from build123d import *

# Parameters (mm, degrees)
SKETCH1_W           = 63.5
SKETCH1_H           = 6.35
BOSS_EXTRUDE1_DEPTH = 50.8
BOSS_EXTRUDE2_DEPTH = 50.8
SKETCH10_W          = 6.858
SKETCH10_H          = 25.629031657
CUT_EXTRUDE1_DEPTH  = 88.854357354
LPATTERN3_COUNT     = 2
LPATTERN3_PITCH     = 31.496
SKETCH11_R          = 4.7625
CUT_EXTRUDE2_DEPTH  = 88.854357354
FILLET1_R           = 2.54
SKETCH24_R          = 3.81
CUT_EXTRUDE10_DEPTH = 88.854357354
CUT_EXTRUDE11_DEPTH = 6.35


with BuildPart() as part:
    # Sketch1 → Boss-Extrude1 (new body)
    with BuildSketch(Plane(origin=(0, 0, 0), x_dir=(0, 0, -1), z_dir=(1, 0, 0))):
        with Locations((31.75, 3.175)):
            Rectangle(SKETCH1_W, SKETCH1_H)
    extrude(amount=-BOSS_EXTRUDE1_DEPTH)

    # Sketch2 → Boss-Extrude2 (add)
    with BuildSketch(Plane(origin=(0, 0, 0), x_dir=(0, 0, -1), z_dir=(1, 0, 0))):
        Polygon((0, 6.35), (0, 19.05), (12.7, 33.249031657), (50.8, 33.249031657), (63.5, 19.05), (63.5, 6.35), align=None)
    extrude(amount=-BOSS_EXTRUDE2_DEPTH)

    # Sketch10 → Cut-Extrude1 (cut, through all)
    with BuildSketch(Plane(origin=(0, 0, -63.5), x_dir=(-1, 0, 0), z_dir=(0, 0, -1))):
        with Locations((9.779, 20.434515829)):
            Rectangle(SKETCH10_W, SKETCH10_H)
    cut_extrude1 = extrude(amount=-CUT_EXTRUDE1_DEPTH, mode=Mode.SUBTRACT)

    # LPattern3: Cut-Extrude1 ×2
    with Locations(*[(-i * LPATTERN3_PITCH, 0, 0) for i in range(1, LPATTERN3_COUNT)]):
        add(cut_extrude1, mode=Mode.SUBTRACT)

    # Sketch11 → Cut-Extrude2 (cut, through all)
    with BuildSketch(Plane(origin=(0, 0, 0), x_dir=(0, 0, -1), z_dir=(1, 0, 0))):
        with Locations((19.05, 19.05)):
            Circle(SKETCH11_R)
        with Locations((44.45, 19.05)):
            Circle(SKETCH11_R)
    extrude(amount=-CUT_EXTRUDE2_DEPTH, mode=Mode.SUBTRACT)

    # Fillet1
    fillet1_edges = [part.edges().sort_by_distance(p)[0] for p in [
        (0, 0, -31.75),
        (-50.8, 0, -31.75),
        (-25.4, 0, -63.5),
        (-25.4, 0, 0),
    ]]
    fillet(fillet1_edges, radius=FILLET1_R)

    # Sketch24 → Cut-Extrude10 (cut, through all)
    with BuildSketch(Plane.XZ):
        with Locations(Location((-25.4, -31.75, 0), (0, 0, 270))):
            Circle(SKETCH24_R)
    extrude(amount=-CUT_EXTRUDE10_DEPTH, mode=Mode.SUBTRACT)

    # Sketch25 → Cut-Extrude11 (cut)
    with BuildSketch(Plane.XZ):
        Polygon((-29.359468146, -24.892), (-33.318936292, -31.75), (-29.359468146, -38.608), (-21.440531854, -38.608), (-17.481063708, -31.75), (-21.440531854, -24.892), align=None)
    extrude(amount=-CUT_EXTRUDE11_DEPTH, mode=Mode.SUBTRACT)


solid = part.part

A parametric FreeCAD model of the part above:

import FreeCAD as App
import Part
import Sketcher
from FreeCAD import Vector
Q = App.Units.Quantity


def edges_at(feature, points):
    """Names of the edges that pass closest to the given points."""
    edges = feature.Shape.Edges
    near = lambda p: min(range(len(edges)), key=lambda i: edges[i].distToShape(Part.Vertex(*p))[0])
    return sorted({f"Edge{near(p) + 1}" for p in points})


def add_polygon(sketch, points):
    """Adds a closed chain of lines whose ends are joined by coincident constraints."""
    first, n = sketch.GeometryCount, len(points)
    for a, b in zip(points, points[1:] + points[:1]):
        sketch.addGeometry(Part.LineSegment(App.Vector(*a, 0), App.Vector(*b, 0)), False)
    for i in range(n):
        sketch.addConstraint(Sketcher.Constraint("Coincident", first + i, 2, first + (i + 1) % n, 1))

doc = App.newDocument("Part")
body = doc.addObject("PartDesign::Body", "Body")

sketch1 = body.newObject("Sketcher::SketchObject", "Sketch")
sketch1.AttachmentSupport = (doc.getObject("YZ_Plane"), [""])
sketch1.MapMode = "FlatFace"
add_polygon(sketch1, [(6.35, 0), (0, 0), (0, -63.5), (6.35, -63.5)])
sketch1.addConstraint([
    Sketcher.Constraint("Horizontal", 0),
    Sketcher.Constraint("Vertical", 1),
    Sketcher.Constraint("Horizontal", 2),
    Sketcher.Constraint("Vertical", 3),
    Sketcher.Constraint("Coincident", 0, 2, -1, 1),
    Sketcher.Constraint("DistanceY", 1, 2, 1, 1, Q("2.5 in")),
    Sketcher.Constraint("DistanceX", 0, 2, 0, 1, Q("0.25 in")),
])
pad1 = body.newObject("PartDesign::Pad", "Pad")
pad1.Profile = sketch1
pad1.Length = Q("2 in")
pad1.Reversed = True

sketch2 = body.newObject("Sketcher::SketchObject", "Sketch001")
sketch2.AttachmentSupport = (doc.getObject("YZ_Plane"), [""])
sketch2.MapMode = "FlatFace"
add_polygon(sketch2, [(19.05, 0), (6.35, 0), (6.35, -63.5), (19.05, -63.5), (33.249032, -50.8), (33.249032, -12.7)])
sketch2.addConstraint([
    Sketcher.Constraint("Horizontal", 0),
    Sketcher.Constraint("Vertical", 1),
    Sketcher.Constraint("Horizontal", 2),
    Sketcher.Constraint("Vertical", 4),
    Sketcher.Constraint("PointOnObject", 0, 2, -1),
    Sketcher.Constraint("Vertical", 2, 2, 5, 2),
    Sketcher.Constraint("Equal", 3, 5),
    Sketcher.Constraint("DistanceX", 0, 2, 0, 1, Q("0.5 in")),
    Sketcher.Constraint("DistanceY", 1, 2, 1, 1, Q("2.5 in")),
    Sketcher.Constraint("DistanceY", 4, 1, 4, 2, Q("1.5 in")),
    Sketcher.Constraint("Distance", 3, Q("0.75 in")),
    Sketcher.Constraint("DistanceX", -1, 1, 0, 2, Q("0.25 in")),
])
pad2 = body.newObject("PartDesign::Pad", "Pad001")
pad2.Profile = sketch2
pad2.Length = Q("2 in")
pad2.Reversed = True

sketch3 = body.newObject("Sketcher::SketchObject", "Sketch002")
sketch3.AttachmentSupport = (doc.getObject("XY_Plane"), [""])
sketch3.MapMode = "FlatFace"
sketch3.AttachmentOffset = App.Placement(Vector(0, 0, -2.5 * 25.4), App.Rotation())
add_polygon(sketch3, [(-6.35, 33.249032), (-6.35, 7.62), (-13.208, 7.62), (-13.208, 33.249032)])
sketch3.addConstraint([
    Sketcher.Constraint("Vertical", 0),
    Sketcher.Constraint("Horizontal", 1),
    Sketcher.Constraint("Vertical", 2),
    Sketcher.Constraint("Horizontal", 3),
    Sketcher.Constraint("DistanceX", 1, 2, 1, 1, Q("0.27 in")),
    Sketcher.Constraint("DistanceY", -1, 1, 0, 2, Q("0.3 in")),
    Sketcher.Constraint("DistanceX", 0, 2, -1, 1, Q("0.25 in")),
    Sketcher.Constraint("DistanceY", 0, 2, 0, 1, Q("25.629032 mm")),
])
pocket1 = body.newObject("PartDesign::Pocket", "Pocket")
pocket1.Profile = sketch3
pocket1.Type = "ThroughAll"
pocket1.Reversed = True
doc.recompute()

linearpattern = body.newObject("PartDesign::LinearPattern", "LinearPattern")
linearpattern.Originals = [pocket1]
linearpattern.Direction = (doc.getObject("X_Axis"), [""])
linearpattern.Mode = "offset"
linearpattern.Offset = Q("1.24 in")
linearpattern.Occurrences = 2
linearpattern.Reversed = True
body.Tip = linearpattern

sketch4 = body.newObject("Sketcher::SketchObject", "Sketch003")
sketch4.AttachmentSupport = (doc.getObject("YZ_Plane"), [""])
sketch4.MapMode = "FlatFace"
sketch4.addGeometry([
    Part.Circle(Vector(19.05, -19.05, 0), Vector(0, 0, 1), 4.7625),
    Part.Circle(Vector(19.05, -44.45, 0), Vector(0, 0, 1), 4.7625),
], False)
sketch4.addConstraint([
    Sketcher.Constraint("Equal", 0, 1),
    Sketcher.Constraint("Vertical", 0, 3, 1, 3),
    Sketcher.Constraint("Diameter", 0, Q("0.375 in")),
    Sketcher.Constraint("DistanceY", 1, 3, 0, 3, Q("1 in")),
    Sketcher.Constraint("DistanceX", -1, 1, 0, 3, Q("0.75 in")),
    Sketcher.Constraint("DistanceY", 0, 3, -1, 1, Q("0.75 in")),
])
pocket2 = body.newObject("PartDesign::Pocket", "Pocket001")
pocket2.Profile = sketch4
pocket2.Type = "ThroughAll"
doc.recompute()

fillet = body.newObject("PartDesign::Fillet", "Fillet")
fillet.Base = (pocket2, edges_at(pocket2, [
    (0, 0, -31.75),
    (-50.8, 0, -31.75),
    (-25.4, 0, -63.5),
    (-25.4, 0, 0),
]))
fillet.Radius = Q("0.1 in")

sketch5 = body.newObject("Sketcher::SketchObject", "Sketch004")
sketch5.AttachmentSupport = (doc.getObject("XZ_Plane"), [""])
sketch5.MapMode = "FlatFace"
sketch5.addGeometry(Part.Circle(Vector(-25.4, -31.75, 0), Vector(0, 0, 1), 3.81), False)
sketch5.addConstraint([
    Sketcher.Constraint("Diameter", 0, Q("0.3 in")),
    Sketcher.Constraint("DistanceX", 0, 3, -1, 1, Q("1 in")),
    Sketcher.Constraint("DistanceY", 0, 3, -1, 1, Q("1.25 in")),
])
pocket3 = body.newObject("PartDesign::Pocket", "Pocket002")
pocket3.Profile = sketch5
pocket3.Type = "ThroughAll"

sketch6 = body.newObject("Sketcher::SketchObject", "Sketch005")
sketch6.AttachmentSupport = (doc.getObject("XZ_Plane"), [""])
sketch6.MapMode = "FlatFace"
add_polygon(sketch6, [(-29.359468, -24.892), (-33.318936, -31.75), (-29.359468, -38.608), (-21.440532, -38.608), (-17.481064, -31.75), (-21.440532, -24.892)])
sketch6.addConstraint([
    Sketcher.Constraint("Horizontal", 2),
    Sketcher.Constraint("Horizontal", 5),
    Sketcher.Constraint("Parallel", 0, 3),
    Sketcher.Constraint("Parallel", 1, 4),
    Sketcher.Constraint("Horizontal", 0, 2, 3, 2),
    Sketcher.Constraint("Vertical", 2, 2, 4, 2),
    Sketcher.Constraint("Vertical", 1, 2, 5, 2),
    Sketcher.Constraint("Angle", 0, Q("-120 deg")),
    Sketcher.Constraint("DistanceY", 0, 2, -1, 1, Q("1.25 in")),
    Sketcher.Constraint("DistanceY", 1, 2, -1, 1, Q("1.52 in")),
    Sketcher.Constraint("DistanceX", 2, 1, 2, 2, Q("7.918936 mm")),
    Sketcher.Constraint("DistanceX", 1, 2, -1, 1, Q("29.359468 mm")),
])
pocket4 = body.newObject("PartDesign::Pocket", "Pocket003")
pocket4.Profile = sketch6
pocket4.Length = Q("0.25 in")

doc.recompute()
